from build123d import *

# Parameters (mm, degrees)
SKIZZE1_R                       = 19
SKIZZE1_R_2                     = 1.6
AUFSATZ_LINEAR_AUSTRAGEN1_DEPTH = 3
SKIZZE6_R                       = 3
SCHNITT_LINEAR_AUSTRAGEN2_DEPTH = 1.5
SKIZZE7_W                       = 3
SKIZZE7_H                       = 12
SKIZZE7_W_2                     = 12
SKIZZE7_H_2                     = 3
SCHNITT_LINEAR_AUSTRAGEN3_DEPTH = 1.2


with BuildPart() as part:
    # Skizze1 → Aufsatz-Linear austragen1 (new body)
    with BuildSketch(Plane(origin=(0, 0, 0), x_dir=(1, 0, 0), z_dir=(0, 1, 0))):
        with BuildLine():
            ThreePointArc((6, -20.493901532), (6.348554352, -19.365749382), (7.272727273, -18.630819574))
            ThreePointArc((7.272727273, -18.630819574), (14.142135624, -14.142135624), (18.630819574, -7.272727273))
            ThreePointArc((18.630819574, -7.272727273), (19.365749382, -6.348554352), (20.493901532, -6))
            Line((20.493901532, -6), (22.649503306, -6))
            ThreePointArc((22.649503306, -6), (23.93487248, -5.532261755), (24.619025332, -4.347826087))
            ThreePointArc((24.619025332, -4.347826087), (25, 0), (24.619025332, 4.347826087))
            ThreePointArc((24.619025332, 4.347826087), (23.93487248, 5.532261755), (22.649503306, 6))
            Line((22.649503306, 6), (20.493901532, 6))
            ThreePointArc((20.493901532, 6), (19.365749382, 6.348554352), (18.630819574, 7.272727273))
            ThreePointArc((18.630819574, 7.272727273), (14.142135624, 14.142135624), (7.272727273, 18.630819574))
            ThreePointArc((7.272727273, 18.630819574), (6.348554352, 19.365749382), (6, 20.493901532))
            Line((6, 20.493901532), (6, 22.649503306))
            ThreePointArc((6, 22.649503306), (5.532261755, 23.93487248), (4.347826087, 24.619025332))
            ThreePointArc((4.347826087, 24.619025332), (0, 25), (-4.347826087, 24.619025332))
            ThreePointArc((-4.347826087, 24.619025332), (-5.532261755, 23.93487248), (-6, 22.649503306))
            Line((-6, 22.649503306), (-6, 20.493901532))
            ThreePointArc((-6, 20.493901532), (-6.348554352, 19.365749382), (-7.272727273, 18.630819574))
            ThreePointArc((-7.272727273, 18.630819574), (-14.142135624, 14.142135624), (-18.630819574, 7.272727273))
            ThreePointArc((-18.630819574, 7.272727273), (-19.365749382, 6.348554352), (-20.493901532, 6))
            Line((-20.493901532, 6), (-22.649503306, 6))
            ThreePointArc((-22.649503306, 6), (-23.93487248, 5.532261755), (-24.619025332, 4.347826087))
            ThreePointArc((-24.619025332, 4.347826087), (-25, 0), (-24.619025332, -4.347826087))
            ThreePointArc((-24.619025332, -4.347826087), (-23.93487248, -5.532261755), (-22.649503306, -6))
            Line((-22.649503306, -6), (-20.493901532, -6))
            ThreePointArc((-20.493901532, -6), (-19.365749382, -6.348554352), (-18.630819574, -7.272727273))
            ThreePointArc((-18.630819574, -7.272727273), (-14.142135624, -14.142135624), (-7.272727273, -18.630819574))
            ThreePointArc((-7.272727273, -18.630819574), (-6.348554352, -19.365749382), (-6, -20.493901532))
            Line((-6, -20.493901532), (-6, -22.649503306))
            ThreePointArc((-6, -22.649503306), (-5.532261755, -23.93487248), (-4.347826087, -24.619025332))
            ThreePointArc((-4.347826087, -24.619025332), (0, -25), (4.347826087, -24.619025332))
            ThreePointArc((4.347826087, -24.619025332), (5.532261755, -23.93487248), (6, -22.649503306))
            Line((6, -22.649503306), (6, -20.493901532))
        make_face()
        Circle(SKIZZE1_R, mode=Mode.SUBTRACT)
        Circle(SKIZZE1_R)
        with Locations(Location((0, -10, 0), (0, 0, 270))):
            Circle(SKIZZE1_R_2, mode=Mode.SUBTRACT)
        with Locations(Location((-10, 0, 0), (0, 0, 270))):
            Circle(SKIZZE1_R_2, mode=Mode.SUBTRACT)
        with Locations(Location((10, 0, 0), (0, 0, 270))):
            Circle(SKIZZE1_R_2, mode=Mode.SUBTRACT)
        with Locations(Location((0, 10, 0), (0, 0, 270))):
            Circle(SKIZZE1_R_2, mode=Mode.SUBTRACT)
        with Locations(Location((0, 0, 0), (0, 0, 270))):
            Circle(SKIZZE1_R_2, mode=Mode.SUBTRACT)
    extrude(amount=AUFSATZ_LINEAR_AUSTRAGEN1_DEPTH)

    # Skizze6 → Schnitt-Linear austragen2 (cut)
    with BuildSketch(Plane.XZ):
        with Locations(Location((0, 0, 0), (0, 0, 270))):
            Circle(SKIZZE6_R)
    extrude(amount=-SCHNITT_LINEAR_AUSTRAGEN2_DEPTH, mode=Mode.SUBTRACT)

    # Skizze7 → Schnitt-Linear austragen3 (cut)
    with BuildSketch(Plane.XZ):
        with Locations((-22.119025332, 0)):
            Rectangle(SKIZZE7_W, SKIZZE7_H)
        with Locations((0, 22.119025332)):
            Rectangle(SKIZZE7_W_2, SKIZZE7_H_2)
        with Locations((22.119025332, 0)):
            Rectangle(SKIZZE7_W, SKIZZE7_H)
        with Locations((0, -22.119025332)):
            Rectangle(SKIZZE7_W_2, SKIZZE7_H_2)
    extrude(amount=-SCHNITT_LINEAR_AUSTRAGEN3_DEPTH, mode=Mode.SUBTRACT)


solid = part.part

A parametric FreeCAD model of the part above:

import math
import FreeCAD as App
import Part
import Sketcher
Q = App.Units.Quantity

doc = App.newDocument("Part")
params = doc.addObject("Spreadsheet::Sheet", "Params")
for row, (alias, value) in enumerate([
    ("sketch1_radius", "2 mm"),
    ("sketch1_radius2", "20 mm"),
    ("sketch1_radius3", "25 mm"),
    ("sketch1_diameter", "3.2 mm"),
    ("pad1_length", "3 mm"),
    ("sketch2_diameter", "6 mm"),
    ("pocket1_length", "1.5 mm"),
    ("sketch3_width", "3 mm"),
    ("sketch3_width2", "12 mm"),
    ("pocket2_length", "1.2 mm"),
], start=1):
    params.set(f"A{row}", alias)
    params.set(f"B{row}", "=" + value)
    params.setAlias(f"B{row}", alias)

body = doc.addObject("PartDesign::Body", "Body")

# Sketch on XZ plane
sketch1 = doc.addObject("Sketcher::SketchObject", "Sketch")
body.addObject(sketch1)
sketch1.AttachmentSupport = (doc.XZ_Plane, [""])
sketch1.MapMode = "FlatFace"
sketch1.addGeometry([
    Part.ArcOfCircle(Part.Circle(App.Vector(8, 20.5, 0), App.Vector(0, 0, 1), 2), math.radians(180), math.radians(249)),  # 0
    Part.ArcOfCircle(Part.Circle(App.Vector(0, 0, 0), App.Vector(0, 0, 1), 20), math.radians(21), math.radians(69)),  # 1
    Part.ArcOfCircle(Part.Circle(App.Vector(20.5, 8, 0), App.Vector(0, 0, 1), 2), math.radians(-159), math.radians(-90)),  # 2
    Part.LineSegment(App.Vector(20.5, 6, 0), App.Vector(22.6, 6, 0)),  # 3
    Part.ArcOfCircle(Part.Circle(App.Vector(22.6, 4, 0), App.Vector(0, 0, 1), 2), math.radians(10), math.radians(90)),  # 4
    Part.ArcOfCircle(Part.Circle(App.Vector(0, 0, 0), App.Vector(0, 0, 1), 25), math.radians(-10), math.radians(10)),  # 5
    Part.ArcOfCircle(Part.Circle(App.Vector(22.6, -4, 0), App.Vector(0, 0, 1), 2), math.radians(-90), math.radians(-10)),  # 6
    Part.LineSegment(App.Vector(22.6, -6, 0), App.Vector(20.5, -6, 0)),  # 7
    Part.ArcOfCircle(Part.Circle(App.Vector(20.5, -8, 0), App.Vector(0, 0, 1), 2), math.radians(90), math.radians(159)),  # 8
    Part.ArcOfCircle(Part.Circle(App.Vector(0, 0, 0), App.Vector(0, 0, 1), 20), math.radians(-69), math.radians(-21)),  # 9
    Part.ArcOfCircle(Part.Circle(App.Vector(8, -20.5, 0), App.Vector(0, 0, 1), 2), math.radians(111), math.radians(180)),  # 10
    Part.LineSegment(App.Vector(6, -20.5, 0), App.Vector(6, -22.6, 0)),  # 11
    Part.ArcOfCircle(Part.Circle(App.Vector(4, -22.6, 0), App.Vector(0, 0, 1), 2), math.radians(-80), math.radians(0)),  # 12
    Part.ArcOfCircle(Part.Circle(App.Vector(0, 0, 0), App.Vector(0, 0, 1), 25), math.radians(-100), math.radians(-80)),  # 13
    Part.ArcOfCircle(Part.Circle(App.Vector(-4, -22.6, 0), App.Vector(0, 0, 1), 2), math.radians(180), math.radians(260)),  # 14
    Part.LineSegment(App.Vector(-6, -22.6, 0), App.Vector(-6, -20.5, 0)),  # 15
    Part.ArcOfCircle(Part.Circle(App.Vector(-8, -20.5, 0), App.Vector(0, 0, 1), 2), math.radians(0), math.radians(69)),  # 16
    Part.ArcOfCircle(Part.Circle(App.Vector(0, 0, 0), App.Vector(0, 0, 1), 20), math.radians(-159), math.radians(-111)),  # 17
    Part.ArcOfCircle(Part.Circle(App.Vector(-20.5, -8, 0), App.Vector(0, 0, 1), 2), math.radians(21), math.radians(90)),  # 18
    Part.LineSegment(App.Vector(-20.5, -6, 0), App.Vector(-22.6, -6, 0)),  # 19
    Part.ArcOfCircle(Part.Circle(App.Vector(-22.6, -4, 0), App.Vector(0, 0, 1), 2), math.radians(-170), math.radians(-90)),  # 20
    Part.ArcOfCircle(Part.Circle(App.Vector(0, 0, 0), App.Vector(0, 0, 1), 25), math.radians(170), math.radians(190)),  # 21
    Part.ArcOfCircle(Part.Circle(App.Vector(-22.6, 4, 0), App.Vector(0, 0, 1), 2), math.radians(90), math.radians(170)),  # 22
    Part.LineSegment(App.Vector(-22.6, 6, 0), App.Vector(-20.5, 6, 0)),  # 23
    Part.ArcOfCircle(Part.Circle(App.Vector(-20.5, 8, 0), App.Vector(0, 0, 1), 2), math.radians(-90), math.radians(-21)),  # 24
    Part.ArcOfCircle(Part.Circle(App.Vector(0, 0, 0), App.Vector(0, 0, 1), 20), math.radians(111), math.radians(159)),  # 25
    Part.ArcOfCircle(Part.Circle(App.Vector(-8, 20.5, 0), App.Vector(0, 0, 1), 2), math.radians(-69), math.radians(0)),  # 26
    Part.LineSegment(App.Vector(-6, 20.5, 0), App.Vector(-6, 22.6, 0)),  # 27
    Part.ArcOfCircle(Part.Circle(App.Vector(-4, 22.6, 0), App.Vector(0, 0, 1), 2), math.radians(100), math.radians(180)),  # 28
    Part.ArcOfCircle(Part.Circle(App.Vector(0, 0, 0), App.Vector(0, 0, 1), 25), math.radians(80), math.radians(100)),  # 29
    Part.ArcOfCircle(Part.Circle(App.Vector(4, 22.6, 0), App.Vector(0, 0, 1), 2), math.radians(0), math.radians(80)),  # 30
    Part.LineSegment(App.Vector(6, 22.6, 0), App.Vector(6, 20.5, 0)),  # 31
    Part.Circle(App.Vector(0, 10, 0), App.Vector(0, 0, 1), 1.6),  # 32
    Part.Circle(App.Vector(-10, 0, 0), App.Vector(0, 0, 1), 1.6),  # 33
    Part.Circle(App.Vector(0, 0, 0), App.Vector(0, 0, 1), 1.6),  # 34
    Part.Circle(App.Vector(10, 0, 0), App.Vector(0, 0, 1), 1.6),  # 35
    Part.Circle(App.Vector(0, -10, 0), App.Vector(0, 0, 1), 1.6),  # 36
], False)
sketch1.addConstraint([
    Sketcher.Constraint("Tangent", 0, 2, 1, 2),
    Sketcher.Constraint("Tangent", 1, 1, 2, 1),
    Sketcher.Constraint("Tangent", 2, 2, 3, 1),
    Sketcher.Constraint("Tangent", 3, 2, 4, 2),
    Sketcher.Constraint("Tangent", 4, 1, 5, 2),
    Sketcher.Constraint("Tangent", 5, 1, 6, 2),
    Sketcher.Constraint("Tangent", 6, 1, 7, 1),
    Sketcher.Constraint("Tangent", 7, 2, 8, 1),
    Sketcher.Constraint("Tangent", 8, 2, 9, 2),
    Sketcher.Constraint("Tangent", 9, 1, 10, 1),
    Sketcher.Constraint("Tangent", 10, 2, 11, 1),
    Sketcher.Constraint("Tangent", 11, 2, 12, 2),
    Sketcher.Constraint("Tangent", 12, 1, 13, 2),
    Sketcher.Constraint("Tangent", 13, 1, 14, 2),
    Sketcher.Constraint("Tangent", 14, 1, 15, 1),
    Sketcher.Constraint("Tangent", 15, 2, 16, 1),
    Sketcher.Constraint("Tangent", 16, 2, 17, 2),
    Sketcher.Constraint("Tangent", 17, 1, 18, 1),
    Sketcher.Constraint("Tangent", 18, 2, 19, 1),
    Sketcher.Constraint("Tangent", 19, 2, 20, 2),
    Sketcher.Constraint("Tangent", 20, 1, 21, 2),
    Sketcher.Constraint("Tangent", 21, 1, 22, 2),
    Sketcher.Constraint("Tangent", 22, 1, 23, 1),
    Sketcher.Constraint("Tangent", 23, 2, 24, 1),
    Sketcher.Constraint("Tangent", 24, 2, 25, 2),
    Sketcher.Constraint("Tangent", 25, 1, 26, 1),
    Sketcher.Constraint("Tangent", 26, 2, 27, 1),
    Sketcher.Constraint("Tangent", 27, 2, 28, 2),
    Sketcher.Constraint("Tangent", 28, 1, 29, 2),
    Sketcher.Constraint("Tangent", 29, 1, 30, 2),
    Sketcher.Constraint("Tangent", 30, 1, 31, 1),
    Sketcher.Constraint("Tangent", 31, 2, 0, 1),
    Sketcher.Constraint("Horizontal", 3),
    Sketcher.Constraint("Horizontal", 7),
    Sketcher.Constraint("Vertical", 11),
    Sketcher.Constraint("Vertical", 15),
    Sketcher.Constraint("Horizontal", 19),
    Sketcher.Constraint("Horizontal", 23),
    Sketcher.Constraint("Vertical", 27),
    Sketcher.Constraint("Vertical", 31),
    Sketcher.Constraint("Coincident", 1, 3, -1, 1),
    Sketcher.Constraint("Coincident", 5, 3, -1, 1),
    Sketcher.Constraint("Coincident", 9, 3, -1, 1),
    Sketcher.Constraint("Coincident", 13, 3, -1, 1),
    Sketcher.Constraint("Coincident", 17, 3, -1, 1),
    Sketcher.Constraint("Coincident", 21, 3, -1, 1),
    Sketcher.Constraint("Coincident", 25, 3, -1, 1),
    Sketcher.Constraint("Coincident", 29, 3, -1, 1),
    Sketcher.Constraint("Coincident", 34, 3, -1, 1),
    Sketcher.Constraint("Equal", 0, 2),
    Sketcher.Constraint("Equal", 2, 4),
    Sketcher.Constraint("Equal", 4, 6),
    Sketcher.Constraint("Equal", 6, 8),
    Sketcher.Constraint("Equal", 1, 9),
    Sketcher.Constraint("Equal", 8, 10),
    Sketcher.Constraint("Equal", 10, 12),
    Sketcher.Constraint("Equal", 5, 13),
    Sketcher.Constraint("Equal", 12, 14),
    Sketcher.Constraint("Equal", 14, 16),
    Sketcher.Constraint("Equal", 9, 17),
    Sketcher.Constraint("Equal", 16, 18),
    Sketcher.Constraint("Equal", 18, 20),
    Sketcher.Constraint("Equal", 13, 21),
    Sketcher.Constraint("Equal", 20, 22),
    Sketcher.Constraint("Equal", 22, 24),
    Sketcher.Constraint("Equal", 17, 25),
    Sketcher.Constraint("Equal", 24, 26),
    Sketcher.Constraint("Equal", 26, 28),
    Sketcher.Constraint("Equal", 21, 29),
    Sketcher.Constraint("Equal", 28, 30),
    Sketcher.Constraint("Equal", 32, 33),
    Sketcher.Constraint("Equal", 33, 34),
    Sketcher.Constraint("Equal", 34, 35),
    Sketcher.Constraint("Equal", 35, 36),
    Sketcher.Constraint("Symmetric", 33, 3, 35, 3, -1, 1),
    Sketcher.Constraint("Symmetric", 32, 3, 36, 3, -1, 1),
    Sketcher.Constraint("PointOnObject", 32, 3, -2),
    Sketcher.Constraint("PointOnObject", 33, 3, -1),
    Sketcher.Constraint("Horizontal", 12, 3, 14, 3),
    Sketcher.Constraint("Horizontal", 8, 3, 18, 3),
    Sketcher.Constraint("Horizontal", 4, 3, 22, 3),
    Sketcher.Constraint("Horizontal", 0, 3, 26, 3),
    Sketcher.Constraint("Vertical", 4, 3, 6, 3),
    Sketcher.Constraint("Vertical", 0, 3, 10, 3),
    Sketcher.Constraint("Equal", 23, 11),
    Sketcher.Constraint("Radius", 0, Q("2 mm")),
    Sketcher.Constraint("Radius", 1, Q("20 mm")),
    Sketcher.Constraint("Radius", 5, Q("25 mm")),
    Sketcher.Constraint("Diameter", 32, Q("3.2 mm")),
    Sketcher.Constraint("DistanceX", -1, 1, 0, 3, Q("8 mm")),
    Sketcher.Constraint("DistanceY", -1, 1, 32, 3, Q("10 mm")),
    Sketcher.Constraint("DistanceX", 33, 3, -1, 1, Q("10 mm")),
])
sketch1.setExpression("Constraints[85]", "Params.sketch1_radius")
sketch1.setExpression("Constraints[86]", "Params.sketch1_radius2")
sketch1.setExpression("Constraints[87]", "Params.sketch1_radius3")
sketch1.setExpression("Constraints[88]", "Params.sketch1_diameter")
pad1 = doc.addObject("PartDesign::Pad", "Pad")
body.addObject(pad1)
pad1.Profile = sketch1
pad1.setExpression("Length", "Params.pad1_length")
pad1.Reversed = True

# Sketch on XZ plane
sketch2 = doc.addObject("Sketcher::SketchObject", "Sketch001")
body.addObject(sketch2)
sketch2.AttachmentSupport = (doc.XZ_Plane, [""])
sketch2.MapMode = "FlatFace"
sketch2.addGeometry(Part.Circle(App.Vector(0, 0, 0), App.Vector(0, 0, 1), 3), False)
sketch2.addConstraint([
    Sketcher.Constraint("Coincident", 0, 3, -1, 1),
    Sketcher.Constraint("Diameter", 0, Q("6 mm")),
])
sketch2.setExpression("Constraints[1]", "Params.sketch2_diameter")
pocket1 = doc.addObject("PartDesign::Pocket", "Pocket")
body.addObject(pocket1)
pocket1.Profile = sketch2
pocket1.setExpression("Length", "Params.pocket1_length")

# Sketch on XZ plane
sketch3 = doc.addObject("Sketcher::SketchObject", "Sketch002")
body.addObject(sketch3)
sketch3.AttachmentSupport = (doc.XZ_Plane, [""])
sketch3.MapMode = "FlatFace"
sketch3.addGeometry([
    Part.LineSegment(App.Vector(-23.6, 6, 0), App.Vector(-23.6, -6, 0)),  # 0
    Part.LineSegment(App.Vector(-23.6, -6, 0), App.Vector(-20.6, -6, 0)),  # 1
    Part.LineSegment(App.Vector(-20.6, -6, 0), App.Vector(-20.6, 6, 0)),  # 2
    Part.LineSegment(App.Vector(-20.6, 6, 0), App.Vector(-23.6, 6, 0)),  # 3
    Part.LineSegment(App.Vector(-6, 23.6, 0), App.Vector(-6, 20.6, 0)),  # 4
    Part.LineSegment(App.Vector(-6, 20.6, 0), App.Vector(6, 20.6, 0)),  # 5
    Part.LineSegment(App.Vector(6, 20.6, 0), App.Vector(6, 23.6, 0)),  # 6
    Part.LineSegment(App.Vector(6, 23.6, 0), App.Vector(-6, 23.6, 0)),  # 7
    Part.LineSegment(App.Vector(20.6, 6, 0), App.Vector(20.6, -6, 0)),  # 8
    Part.LineSegment(App.Vector(20.6, -6, 0), App.Vector(23.6, -6, 0)),  # 9
    Part.LineSegment(App.Vector(23.6, -6, 0), App.Vector(23.6, 6, 0)),  # 10
    Part.LineSegment(App.Vector(23.6, 6, 0), App.Vector(20.6, 6, 0)),  # 11
    Part.LineSegment(App.Vector(-6, -20.6, 0), App.Vector(-6, -23.6, 0)),  # 12
    Part.LineSegment(App.Vector(-6, -23.6, 0), App.Vector(6, -23.6, 0)),  # 13
    Part.LineSegment(App.Vector(6, -23.6, 0), App.Vector(6, -20.6, 0)),  # 14
    Part.LineSegment(App.Vector(6, -20.6, 0), App.Vector(-6, -20.6, 0)),  # 15
], False)
sketch3.addConstraint([
    Sketcher.Constraint("Coincident", 0, 2, 1, 1),
    Sketcher.Constraint("Coincident", 1, 2, 2, 1),
    Sketcher.Constraint("Coincident", 2, 2, 3, 1),
    Sketcher.Constraint("Coincident", 3, 2, 0, 1),
    Sketcher.Constraint("Coincident", 4, 2, 5, 1),
    Sketcher.Constraint("Coincident", 5, 2, 6, 1),
    Sketcher.Constraint("Coincident", 6, 2, 7, 1),
    Sketcher.Constraint("Coincident", 7, 2, 4, 1),
    Sketcher.Constraint("Coincident", 8, 2, 9, 1),
    Sketcher.Constraint("Coincident", 9, 2, 10, 1),
    Sketcher.Constraint("Coincident", 10, 2, 11, 1),
    Sketcher.Constraint("Coincident", 11, 2, 8, 1),
    Sketcher.Constraint("Coincident", 12, 2, 13, 1),
    Sketcher.Constraint("Coincident", 13, 2, 14, 1),
    Sketcher.Constraint("Coincident", 14, 2, 15, 1),
    Sketcher.Constraint("Coincident", 15, 2, 12, 1),
    Sketcher.Constraint("Vertical", 0),
    Sketcher.Constraint("Horizontal", 1),
    Sketcher.Constraint("Vertical", 2),
    Sketcher.Constraint("Horizontal", 3),
    Sketcher.Constraint("Vertical", 4),
    Sketcher.Constraint("Horizontal", 5),
    Sketcher.Constraint("Vertical", 6),
    Sketcher.Constraint("Horizontal", 7),
    Sketcher.Constraint("Vertical", 8),
    Sketcher.Constraint("Horizontal", 9),
    Sketcher.Constraint("Vertical", 10),
    Sketcher.Constraint("Horizontal", 11),
    Sketcher.Constraint("Vertical", 12),
    Sketcher.Constraint("Horizontal", 13),
    Sketcher.Constraint("Vertical", 14),
    Sketcher.Constraint("Horizontal", 15),
    Sketcher.Constraint("Symmetric", 2, 2, 8, 2, -1, 1),
    Sketcher.Constraint("Symmetric", 0, 2, 10, 2, -1, 1),
    Sketcher.Constraint("Symmetric", 6, 2, 12, 2, -1, 1),
    Sketcher.Constraint("Symmetric", 4, 2, 14, 2, -1, 1),
    Sketcher.Constraint("Horizontal", 1, 2, 8, 2),
    Sketcher.Constraint("Vertical", 7, 2, 12, 2),
    Sketcher.Constraint("Equal", 15, 0),
    Sketcher.Constraint("Equal", 11, 4),
    Sketcher.Constraint("DistanceX", 1, 1, 1, 2, Q("3 mm")),
    Sketcher.Constraint("DistanceX", 5, 1, 5, 2, Q("12 mm")),
    Sketcher.Constraint("DistanceX", 1, 2, 8, 2, Q("41.238051 mm")),
    Sketcher.Constraint("DistanceY", -1, 1, 4, 2, Q("20.619025 mm")),
])
sketch3.setExpression("Constraints[40]", "Params.sketch3_width")
sketch3.setExpression("Constraints[41]", "Params.sketch3_width2")
pocket2 = doc.addObject("PartDesign::Pocket", "Pocket001")
body.addObject(pocket2)
pocket2.Profile = sketch3
pocket2.setExpression("Length", "Params.pocket2_length")

doc.recompute()
